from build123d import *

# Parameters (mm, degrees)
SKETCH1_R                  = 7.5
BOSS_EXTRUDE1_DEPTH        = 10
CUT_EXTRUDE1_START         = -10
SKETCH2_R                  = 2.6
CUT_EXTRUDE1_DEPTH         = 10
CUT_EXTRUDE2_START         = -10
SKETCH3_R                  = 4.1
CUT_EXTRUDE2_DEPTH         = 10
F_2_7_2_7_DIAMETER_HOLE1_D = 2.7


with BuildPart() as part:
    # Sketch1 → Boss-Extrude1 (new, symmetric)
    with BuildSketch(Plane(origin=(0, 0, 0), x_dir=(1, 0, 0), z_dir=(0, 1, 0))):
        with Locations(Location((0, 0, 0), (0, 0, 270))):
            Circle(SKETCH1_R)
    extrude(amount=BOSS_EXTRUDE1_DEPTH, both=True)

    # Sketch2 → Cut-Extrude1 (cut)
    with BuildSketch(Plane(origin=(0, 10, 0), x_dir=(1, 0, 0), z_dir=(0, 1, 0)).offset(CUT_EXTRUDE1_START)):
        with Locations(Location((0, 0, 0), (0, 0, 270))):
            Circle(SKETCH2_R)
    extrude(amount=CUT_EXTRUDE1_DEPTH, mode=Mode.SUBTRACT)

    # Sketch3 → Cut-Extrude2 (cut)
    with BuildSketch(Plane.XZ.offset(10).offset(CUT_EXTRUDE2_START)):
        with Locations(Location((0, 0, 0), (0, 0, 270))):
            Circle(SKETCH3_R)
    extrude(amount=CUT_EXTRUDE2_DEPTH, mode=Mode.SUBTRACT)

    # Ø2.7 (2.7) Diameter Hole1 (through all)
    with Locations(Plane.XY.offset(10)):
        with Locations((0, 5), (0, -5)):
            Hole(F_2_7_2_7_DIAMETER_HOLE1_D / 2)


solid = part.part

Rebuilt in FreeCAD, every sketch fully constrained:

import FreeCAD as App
import Part
import Sketcher

V = App.Vector

doc = App.newDocument("Part")
body = doc.addObject("PartDesign::Body", "Body")

# Sketch on XZ plane
sketch1 = body.newObject("Sketcher::SketchObject", "Sketch")
sketch1.AttachmentSupport = (doc.getObject("XZ_Plane"), [""])
sketch1.MapMode = "FlatFace"
sketch1.addGeometry(Part.Circle(V(0, 0, 0), V(0, 0, 1), 7.5), False)
sketch1.addConstraint(Sketcher.Constraint("Coincident", 0, 3, -1, 1))
sketch1.addConstraint(Sketcher.Constraint("Diameter", 0, 15.0))
pad1 = body.newObject("PartDesign::Pad", "Pad")
pad1.Profile = sketch1
pad1.Length = 20
pad1.Midplane = True

# Sketch on XZ plane
sketch2 = body.newObject("Sketcher::SketchObject", "Sketch001")
sketch2.AttachmentSupport = (doc.getObject("XZ_Plane"), [""])
sketch2.MapMode = "FlatFace"
sketch2.addGeometry(Part.Circle(V(0, 0, 0), V(0, 0, 1), 2.6), False)
sketch2.addConstraint(Sketcher.Constraint("Coincident", 0, 3, -1, 1))
sketch2.addConstraint(Sketcher.Constraint("Diameter", 0, 5.2))
pocket1 = body.newObject("PartDesign::Pocket", "Pocket")
pocket1.Profile = sketch2
pocket1.Length = 10

# Sketch on XZ plane
sketch3 = body.newObject("Sketcher::SketchObject", "Sketch002")
sketch3.AttachmentSupport = (doc.getObject("XZ_Plane"), [""])
sketch3.MapMode = "FlatFace"
sketch3.addGeometry(Part.Circle(V(0, 0, 0), V(0, 0, 1), 4.1), False)
sketch3.addConstraint(Sketcher.Constraint("Coincident", 0, 3, -1, 1))
sketch3.addConstraint(Sketcher.Constraint("Diameter", 0, 8.2))
pocket2 = body.newObject("PartDesign::Pocket", "Pocket001")
pocket2.Profile = sketch3
pocket2.Length = 10
pocket2.Reversed = True

# Sketch on XY plane
sketch4 = body.newObject("Sketcher::SketchObject", "Sketch003")
sketch4.AttachmentSupport = (doc.getObject("XY_Plane"), [""])
sketch4.MapMode = "FlatFace"
sketch4.AttachmentOffset = App.Placement(V(0, 0, 10), App.Rotation())
sketch4.addGeometry(Part.Circle(V(0, 5, 0), V(0, 0, 1), 1.35), False)
sketch4.addGeometry(Part.Circle(V(0, -5, 0), V(0, 0, 1), 1.35), False)
sketch4.addConstraint(Sketcher.Constraint("Equal", 0, 1))
sketch4.addConstraint(Sketcher.Constraint("Symmetric", 0, 3, 1, 3, -1, 1))
sketch4.addConstraint(Sketcher.Constraint("PointOnObject", 0, 3, -2))
sketch4.addConstraint(Sketcher.Constraint("Diameter", 0, 2.7))
sketch4.addConstraint(Sketcher.Constraint("DistanceY", -1, 1, 0, 3, 5.0))
doc.recompute()
hole = body.newObject("PartDesign::Hole", "Hole")
hole.Profile = sketch4
hole.ThreadType = "None"
hole.Diameter = 2.7
hole.DepthType = "ThroughAll"

doc.recompute()
